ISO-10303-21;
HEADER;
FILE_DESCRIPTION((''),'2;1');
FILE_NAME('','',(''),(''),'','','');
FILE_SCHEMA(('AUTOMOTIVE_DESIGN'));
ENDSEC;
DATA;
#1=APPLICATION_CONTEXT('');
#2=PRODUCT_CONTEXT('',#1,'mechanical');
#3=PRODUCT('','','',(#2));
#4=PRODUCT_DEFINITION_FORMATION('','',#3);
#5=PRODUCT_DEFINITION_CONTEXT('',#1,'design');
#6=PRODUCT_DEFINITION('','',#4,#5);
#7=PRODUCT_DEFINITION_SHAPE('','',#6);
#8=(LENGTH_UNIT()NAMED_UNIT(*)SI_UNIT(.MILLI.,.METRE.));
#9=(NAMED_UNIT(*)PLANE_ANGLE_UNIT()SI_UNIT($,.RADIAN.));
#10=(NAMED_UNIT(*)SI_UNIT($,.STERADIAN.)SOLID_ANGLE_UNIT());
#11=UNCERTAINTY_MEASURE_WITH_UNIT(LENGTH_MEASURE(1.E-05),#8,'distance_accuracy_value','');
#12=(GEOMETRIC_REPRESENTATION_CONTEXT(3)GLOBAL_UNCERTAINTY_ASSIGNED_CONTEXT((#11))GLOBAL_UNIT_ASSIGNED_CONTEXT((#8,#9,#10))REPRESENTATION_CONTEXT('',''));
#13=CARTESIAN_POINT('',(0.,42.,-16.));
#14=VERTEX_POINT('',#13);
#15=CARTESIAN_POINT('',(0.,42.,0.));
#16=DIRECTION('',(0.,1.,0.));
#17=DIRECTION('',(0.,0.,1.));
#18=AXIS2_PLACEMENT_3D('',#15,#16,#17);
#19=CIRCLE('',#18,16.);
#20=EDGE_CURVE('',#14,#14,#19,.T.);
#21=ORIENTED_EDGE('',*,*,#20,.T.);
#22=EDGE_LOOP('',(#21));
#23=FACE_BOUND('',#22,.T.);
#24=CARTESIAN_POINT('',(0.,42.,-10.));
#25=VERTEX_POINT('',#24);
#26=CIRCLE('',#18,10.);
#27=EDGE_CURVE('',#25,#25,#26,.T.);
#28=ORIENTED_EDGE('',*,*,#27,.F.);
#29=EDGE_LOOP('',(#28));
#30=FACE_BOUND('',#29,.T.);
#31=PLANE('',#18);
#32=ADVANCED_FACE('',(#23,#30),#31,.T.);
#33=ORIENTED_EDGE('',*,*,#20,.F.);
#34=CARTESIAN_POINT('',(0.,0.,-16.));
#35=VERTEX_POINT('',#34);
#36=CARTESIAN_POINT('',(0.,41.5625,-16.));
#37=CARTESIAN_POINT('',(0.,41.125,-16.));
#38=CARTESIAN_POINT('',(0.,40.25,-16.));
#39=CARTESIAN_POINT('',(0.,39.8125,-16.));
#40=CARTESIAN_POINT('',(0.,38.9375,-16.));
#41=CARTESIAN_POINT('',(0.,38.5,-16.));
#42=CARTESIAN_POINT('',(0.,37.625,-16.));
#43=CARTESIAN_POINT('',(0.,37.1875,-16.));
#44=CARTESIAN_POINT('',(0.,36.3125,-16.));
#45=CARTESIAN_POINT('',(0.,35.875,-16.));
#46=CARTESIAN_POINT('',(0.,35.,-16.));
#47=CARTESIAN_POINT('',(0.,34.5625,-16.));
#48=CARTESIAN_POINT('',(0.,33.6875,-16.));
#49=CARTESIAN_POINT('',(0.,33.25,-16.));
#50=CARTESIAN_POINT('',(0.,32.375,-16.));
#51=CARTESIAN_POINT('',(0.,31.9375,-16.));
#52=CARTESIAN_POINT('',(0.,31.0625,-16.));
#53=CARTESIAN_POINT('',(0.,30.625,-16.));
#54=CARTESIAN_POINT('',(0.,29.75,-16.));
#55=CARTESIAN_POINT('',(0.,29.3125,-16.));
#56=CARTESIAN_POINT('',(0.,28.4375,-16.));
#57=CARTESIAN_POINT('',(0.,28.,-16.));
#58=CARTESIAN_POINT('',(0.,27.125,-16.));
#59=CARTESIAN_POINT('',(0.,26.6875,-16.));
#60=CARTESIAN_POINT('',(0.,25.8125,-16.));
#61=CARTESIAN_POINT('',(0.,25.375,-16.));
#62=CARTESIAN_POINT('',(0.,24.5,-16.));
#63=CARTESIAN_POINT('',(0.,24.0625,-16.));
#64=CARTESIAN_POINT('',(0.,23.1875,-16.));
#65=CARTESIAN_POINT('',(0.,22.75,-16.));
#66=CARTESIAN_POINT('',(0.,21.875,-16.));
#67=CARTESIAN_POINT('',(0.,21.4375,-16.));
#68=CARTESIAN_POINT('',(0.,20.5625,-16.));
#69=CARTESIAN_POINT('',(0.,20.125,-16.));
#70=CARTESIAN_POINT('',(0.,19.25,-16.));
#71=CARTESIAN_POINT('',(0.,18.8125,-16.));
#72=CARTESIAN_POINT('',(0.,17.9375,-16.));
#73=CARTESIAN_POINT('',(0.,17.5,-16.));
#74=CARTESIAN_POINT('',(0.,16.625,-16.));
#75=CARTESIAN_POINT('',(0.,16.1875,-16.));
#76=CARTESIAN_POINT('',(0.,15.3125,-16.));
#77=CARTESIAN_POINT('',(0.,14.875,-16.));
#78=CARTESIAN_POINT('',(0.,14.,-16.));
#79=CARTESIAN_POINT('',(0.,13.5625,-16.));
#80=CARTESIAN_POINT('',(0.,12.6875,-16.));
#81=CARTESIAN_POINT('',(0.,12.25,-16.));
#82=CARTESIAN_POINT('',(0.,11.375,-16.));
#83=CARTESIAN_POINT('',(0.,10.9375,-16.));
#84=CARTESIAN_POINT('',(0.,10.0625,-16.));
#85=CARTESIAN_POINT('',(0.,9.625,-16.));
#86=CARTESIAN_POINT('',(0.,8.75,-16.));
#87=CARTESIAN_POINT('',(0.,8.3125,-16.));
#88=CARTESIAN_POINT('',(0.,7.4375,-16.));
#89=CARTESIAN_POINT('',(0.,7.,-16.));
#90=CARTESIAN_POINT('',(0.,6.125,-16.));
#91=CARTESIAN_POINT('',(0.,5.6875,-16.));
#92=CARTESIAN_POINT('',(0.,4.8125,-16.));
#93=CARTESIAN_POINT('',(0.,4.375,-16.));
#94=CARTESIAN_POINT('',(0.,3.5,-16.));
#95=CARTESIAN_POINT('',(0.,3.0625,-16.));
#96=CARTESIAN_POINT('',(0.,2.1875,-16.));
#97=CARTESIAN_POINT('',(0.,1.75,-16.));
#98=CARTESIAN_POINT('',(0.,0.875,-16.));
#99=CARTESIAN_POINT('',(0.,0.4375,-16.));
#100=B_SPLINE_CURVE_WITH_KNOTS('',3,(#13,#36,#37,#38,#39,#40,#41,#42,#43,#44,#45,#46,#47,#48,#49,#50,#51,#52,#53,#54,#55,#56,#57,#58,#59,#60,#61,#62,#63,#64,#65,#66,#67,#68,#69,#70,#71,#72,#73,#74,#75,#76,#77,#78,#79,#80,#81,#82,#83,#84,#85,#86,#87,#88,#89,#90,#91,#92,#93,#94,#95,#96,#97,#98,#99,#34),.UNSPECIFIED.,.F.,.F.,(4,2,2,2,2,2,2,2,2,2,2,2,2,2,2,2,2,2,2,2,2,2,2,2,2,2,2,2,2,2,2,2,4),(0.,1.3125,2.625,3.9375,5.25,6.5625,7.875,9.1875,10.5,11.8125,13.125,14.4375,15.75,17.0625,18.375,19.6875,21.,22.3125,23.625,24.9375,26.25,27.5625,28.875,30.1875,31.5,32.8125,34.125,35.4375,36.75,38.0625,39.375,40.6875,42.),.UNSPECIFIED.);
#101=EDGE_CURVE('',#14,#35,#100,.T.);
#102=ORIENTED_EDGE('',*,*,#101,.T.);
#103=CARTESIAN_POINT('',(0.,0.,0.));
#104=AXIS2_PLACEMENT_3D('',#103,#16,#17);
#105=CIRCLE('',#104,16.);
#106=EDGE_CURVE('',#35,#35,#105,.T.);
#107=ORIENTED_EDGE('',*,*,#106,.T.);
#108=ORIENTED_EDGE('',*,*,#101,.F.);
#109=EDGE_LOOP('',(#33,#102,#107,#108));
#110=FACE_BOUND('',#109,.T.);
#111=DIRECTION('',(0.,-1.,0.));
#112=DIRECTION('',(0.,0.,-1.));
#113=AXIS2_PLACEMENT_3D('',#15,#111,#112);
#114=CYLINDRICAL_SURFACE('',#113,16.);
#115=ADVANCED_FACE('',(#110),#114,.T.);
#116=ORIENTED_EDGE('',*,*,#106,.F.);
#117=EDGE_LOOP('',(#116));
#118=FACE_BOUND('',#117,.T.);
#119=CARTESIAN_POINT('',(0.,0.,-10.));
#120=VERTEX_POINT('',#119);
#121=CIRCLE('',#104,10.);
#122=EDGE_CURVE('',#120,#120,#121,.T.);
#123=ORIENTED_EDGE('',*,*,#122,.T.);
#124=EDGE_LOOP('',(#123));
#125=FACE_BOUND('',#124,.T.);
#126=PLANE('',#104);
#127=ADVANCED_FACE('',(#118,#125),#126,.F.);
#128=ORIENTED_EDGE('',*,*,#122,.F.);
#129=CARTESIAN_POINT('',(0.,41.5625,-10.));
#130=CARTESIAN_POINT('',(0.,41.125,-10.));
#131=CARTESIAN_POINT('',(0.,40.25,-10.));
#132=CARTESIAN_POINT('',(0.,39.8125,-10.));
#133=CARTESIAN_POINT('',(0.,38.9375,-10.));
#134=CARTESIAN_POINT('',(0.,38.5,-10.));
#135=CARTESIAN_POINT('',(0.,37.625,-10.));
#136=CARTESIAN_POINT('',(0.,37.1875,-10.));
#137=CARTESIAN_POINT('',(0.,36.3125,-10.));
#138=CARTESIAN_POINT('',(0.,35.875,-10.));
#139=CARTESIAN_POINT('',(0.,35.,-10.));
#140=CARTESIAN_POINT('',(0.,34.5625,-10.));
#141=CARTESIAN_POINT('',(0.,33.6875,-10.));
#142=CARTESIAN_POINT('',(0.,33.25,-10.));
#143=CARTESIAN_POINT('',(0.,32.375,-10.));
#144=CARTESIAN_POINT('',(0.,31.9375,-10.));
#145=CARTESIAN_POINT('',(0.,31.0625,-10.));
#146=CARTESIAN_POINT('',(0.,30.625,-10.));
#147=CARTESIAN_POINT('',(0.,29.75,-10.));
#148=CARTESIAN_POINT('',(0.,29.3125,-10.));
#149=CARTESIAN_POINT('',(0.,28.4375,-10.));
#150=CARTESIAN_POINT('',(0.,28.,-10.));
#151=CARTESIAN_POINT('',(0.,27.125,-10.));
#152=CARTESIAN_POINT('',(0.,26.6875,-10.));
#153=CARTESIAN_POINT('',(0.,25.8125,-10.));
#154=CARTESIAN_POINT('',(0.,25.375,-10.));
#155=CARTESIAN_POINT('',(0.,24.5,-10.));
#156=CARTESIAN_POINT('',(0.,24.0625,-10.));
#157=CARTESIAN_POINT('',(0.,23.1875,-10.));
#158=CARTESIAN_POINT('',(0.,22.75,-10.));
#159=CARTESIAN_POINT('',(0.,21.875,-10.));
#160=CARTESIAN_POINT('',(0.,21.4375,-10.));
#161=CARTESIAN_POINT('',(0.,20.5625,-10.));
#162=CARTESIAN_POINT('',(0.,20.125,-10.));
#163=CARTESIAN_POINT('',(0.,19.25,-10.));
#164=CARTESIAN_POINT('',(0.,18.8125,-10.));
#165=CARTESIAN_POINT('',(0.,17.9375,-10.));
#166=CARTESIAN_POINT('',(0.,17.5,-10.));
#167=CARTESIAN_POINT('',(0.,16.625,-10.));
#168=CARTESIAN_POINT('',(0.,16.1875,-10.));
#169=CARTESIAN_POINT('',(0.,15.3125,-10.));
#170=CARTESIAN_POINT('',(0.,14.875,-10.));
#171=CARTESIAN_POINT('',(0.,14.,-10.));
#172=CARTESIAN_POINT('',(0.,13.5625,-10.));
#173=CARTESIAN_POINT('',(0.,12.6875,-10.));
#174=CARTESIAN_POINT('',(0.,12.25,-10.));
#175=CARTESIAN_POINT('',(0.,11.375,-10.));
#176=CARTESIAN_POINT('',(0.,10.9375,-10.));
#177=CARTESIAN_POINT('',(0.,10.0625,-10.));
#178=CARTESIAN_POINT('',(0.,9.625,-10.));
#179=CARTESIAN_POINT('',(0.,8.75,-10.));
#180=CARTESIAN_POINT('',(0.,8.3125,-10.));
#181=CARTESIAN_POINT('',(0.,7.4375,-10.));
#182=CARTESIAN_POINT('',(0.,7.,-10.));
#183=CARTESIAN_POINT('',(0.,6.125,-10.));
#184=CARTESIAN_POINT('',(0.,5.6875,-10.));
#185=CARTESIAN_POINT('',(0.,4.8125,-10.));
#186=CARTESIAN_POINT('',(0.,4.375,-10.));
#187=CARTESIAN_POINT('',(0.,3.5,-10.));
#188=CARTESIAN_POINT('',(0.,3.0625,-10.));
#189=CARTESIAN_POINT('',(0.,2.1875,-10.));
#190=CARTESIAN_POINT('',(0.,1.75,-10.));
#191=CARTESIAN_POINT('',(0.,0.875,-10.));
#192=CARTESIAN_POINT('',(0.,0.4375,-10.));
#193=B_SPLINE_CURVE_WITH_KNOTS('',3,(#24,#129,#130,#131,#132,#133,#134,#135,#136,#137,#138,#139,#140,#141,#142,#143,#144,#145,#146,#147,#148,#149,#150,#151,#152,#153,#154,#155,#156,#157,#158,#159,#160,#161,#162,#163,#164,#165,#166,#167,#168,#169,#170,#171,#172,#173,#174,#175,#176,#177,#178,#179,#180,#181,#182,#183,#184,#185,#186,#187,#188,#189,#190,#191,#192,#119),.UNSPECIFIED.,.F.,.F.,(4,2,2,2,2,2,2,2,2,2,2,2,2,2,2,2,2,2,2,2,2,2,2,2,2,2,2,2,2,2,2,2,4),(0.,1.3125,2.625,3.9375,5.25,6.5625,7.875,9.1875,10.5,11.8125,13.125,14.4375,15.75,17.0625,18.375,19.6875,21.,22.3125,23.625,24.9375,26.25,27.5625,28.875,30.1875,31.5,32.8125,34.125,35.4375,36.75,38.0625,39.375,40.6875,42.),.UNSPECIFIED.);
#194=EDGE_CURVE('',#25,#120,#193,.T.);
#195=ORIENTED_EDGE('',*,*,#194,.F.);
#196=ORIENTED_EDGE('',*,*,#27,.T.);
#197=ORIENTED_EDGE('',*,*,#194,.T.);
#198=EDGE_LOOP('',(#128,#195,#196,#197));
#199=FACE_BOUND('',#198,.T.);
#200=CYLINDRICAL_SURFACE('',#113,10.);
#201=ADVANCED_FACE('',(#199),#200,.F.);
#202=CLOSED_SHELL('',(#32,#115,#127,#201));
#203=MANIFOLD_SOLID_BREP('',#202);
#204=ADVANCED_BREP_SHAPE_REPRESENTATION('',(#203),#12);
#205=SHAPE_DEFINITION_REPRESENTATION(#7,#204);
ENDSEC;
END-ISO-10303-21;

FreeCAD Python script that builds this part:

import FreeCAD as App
import Part
import Sketcher
from FreeCAD import Vector

doc = App.newDocument("Part")
body = doc.addObject("PartDesign::Body", "Body")

sketch1 = doc.addObject("Sketcher::SketchObject", "Sketch")
body.addObject(sketch1)
sketch1.AttachmentSupport = (doc.XZ_Plane, [""])
sketch1.MapMode = "FlatFace"
sketch1.addGeometry(Part.Circle(Vector(0, 0, 0), Vector(0, 0, 1), 16), False)
sketch1.addGeometry(Part.Circle(Vector(0, 0, 0), Vector(0, 0, 1), 10), False)
sketch1.addConstraint(Sketcher.Constraint("Coincident", 0, 3, -1, 1))
sketch1.addConstraint(Sketcher.Constraint("Coincident", 1, 3, -1, 1))
sketch1.addConstraint(Sketcher.Constraint("Diameter", 0, 32.0))
sketch1.addConstraint(Sketcher.Constraint("Diameter", 1, 20.0))
pad1 = doc.addObject("PartDesign::Pad", "Pad")
body.addObject(pad1)
pad1.Profile = sketch1
pad1.Length = 42
pad1.Reversed = True

doc.recompute()
